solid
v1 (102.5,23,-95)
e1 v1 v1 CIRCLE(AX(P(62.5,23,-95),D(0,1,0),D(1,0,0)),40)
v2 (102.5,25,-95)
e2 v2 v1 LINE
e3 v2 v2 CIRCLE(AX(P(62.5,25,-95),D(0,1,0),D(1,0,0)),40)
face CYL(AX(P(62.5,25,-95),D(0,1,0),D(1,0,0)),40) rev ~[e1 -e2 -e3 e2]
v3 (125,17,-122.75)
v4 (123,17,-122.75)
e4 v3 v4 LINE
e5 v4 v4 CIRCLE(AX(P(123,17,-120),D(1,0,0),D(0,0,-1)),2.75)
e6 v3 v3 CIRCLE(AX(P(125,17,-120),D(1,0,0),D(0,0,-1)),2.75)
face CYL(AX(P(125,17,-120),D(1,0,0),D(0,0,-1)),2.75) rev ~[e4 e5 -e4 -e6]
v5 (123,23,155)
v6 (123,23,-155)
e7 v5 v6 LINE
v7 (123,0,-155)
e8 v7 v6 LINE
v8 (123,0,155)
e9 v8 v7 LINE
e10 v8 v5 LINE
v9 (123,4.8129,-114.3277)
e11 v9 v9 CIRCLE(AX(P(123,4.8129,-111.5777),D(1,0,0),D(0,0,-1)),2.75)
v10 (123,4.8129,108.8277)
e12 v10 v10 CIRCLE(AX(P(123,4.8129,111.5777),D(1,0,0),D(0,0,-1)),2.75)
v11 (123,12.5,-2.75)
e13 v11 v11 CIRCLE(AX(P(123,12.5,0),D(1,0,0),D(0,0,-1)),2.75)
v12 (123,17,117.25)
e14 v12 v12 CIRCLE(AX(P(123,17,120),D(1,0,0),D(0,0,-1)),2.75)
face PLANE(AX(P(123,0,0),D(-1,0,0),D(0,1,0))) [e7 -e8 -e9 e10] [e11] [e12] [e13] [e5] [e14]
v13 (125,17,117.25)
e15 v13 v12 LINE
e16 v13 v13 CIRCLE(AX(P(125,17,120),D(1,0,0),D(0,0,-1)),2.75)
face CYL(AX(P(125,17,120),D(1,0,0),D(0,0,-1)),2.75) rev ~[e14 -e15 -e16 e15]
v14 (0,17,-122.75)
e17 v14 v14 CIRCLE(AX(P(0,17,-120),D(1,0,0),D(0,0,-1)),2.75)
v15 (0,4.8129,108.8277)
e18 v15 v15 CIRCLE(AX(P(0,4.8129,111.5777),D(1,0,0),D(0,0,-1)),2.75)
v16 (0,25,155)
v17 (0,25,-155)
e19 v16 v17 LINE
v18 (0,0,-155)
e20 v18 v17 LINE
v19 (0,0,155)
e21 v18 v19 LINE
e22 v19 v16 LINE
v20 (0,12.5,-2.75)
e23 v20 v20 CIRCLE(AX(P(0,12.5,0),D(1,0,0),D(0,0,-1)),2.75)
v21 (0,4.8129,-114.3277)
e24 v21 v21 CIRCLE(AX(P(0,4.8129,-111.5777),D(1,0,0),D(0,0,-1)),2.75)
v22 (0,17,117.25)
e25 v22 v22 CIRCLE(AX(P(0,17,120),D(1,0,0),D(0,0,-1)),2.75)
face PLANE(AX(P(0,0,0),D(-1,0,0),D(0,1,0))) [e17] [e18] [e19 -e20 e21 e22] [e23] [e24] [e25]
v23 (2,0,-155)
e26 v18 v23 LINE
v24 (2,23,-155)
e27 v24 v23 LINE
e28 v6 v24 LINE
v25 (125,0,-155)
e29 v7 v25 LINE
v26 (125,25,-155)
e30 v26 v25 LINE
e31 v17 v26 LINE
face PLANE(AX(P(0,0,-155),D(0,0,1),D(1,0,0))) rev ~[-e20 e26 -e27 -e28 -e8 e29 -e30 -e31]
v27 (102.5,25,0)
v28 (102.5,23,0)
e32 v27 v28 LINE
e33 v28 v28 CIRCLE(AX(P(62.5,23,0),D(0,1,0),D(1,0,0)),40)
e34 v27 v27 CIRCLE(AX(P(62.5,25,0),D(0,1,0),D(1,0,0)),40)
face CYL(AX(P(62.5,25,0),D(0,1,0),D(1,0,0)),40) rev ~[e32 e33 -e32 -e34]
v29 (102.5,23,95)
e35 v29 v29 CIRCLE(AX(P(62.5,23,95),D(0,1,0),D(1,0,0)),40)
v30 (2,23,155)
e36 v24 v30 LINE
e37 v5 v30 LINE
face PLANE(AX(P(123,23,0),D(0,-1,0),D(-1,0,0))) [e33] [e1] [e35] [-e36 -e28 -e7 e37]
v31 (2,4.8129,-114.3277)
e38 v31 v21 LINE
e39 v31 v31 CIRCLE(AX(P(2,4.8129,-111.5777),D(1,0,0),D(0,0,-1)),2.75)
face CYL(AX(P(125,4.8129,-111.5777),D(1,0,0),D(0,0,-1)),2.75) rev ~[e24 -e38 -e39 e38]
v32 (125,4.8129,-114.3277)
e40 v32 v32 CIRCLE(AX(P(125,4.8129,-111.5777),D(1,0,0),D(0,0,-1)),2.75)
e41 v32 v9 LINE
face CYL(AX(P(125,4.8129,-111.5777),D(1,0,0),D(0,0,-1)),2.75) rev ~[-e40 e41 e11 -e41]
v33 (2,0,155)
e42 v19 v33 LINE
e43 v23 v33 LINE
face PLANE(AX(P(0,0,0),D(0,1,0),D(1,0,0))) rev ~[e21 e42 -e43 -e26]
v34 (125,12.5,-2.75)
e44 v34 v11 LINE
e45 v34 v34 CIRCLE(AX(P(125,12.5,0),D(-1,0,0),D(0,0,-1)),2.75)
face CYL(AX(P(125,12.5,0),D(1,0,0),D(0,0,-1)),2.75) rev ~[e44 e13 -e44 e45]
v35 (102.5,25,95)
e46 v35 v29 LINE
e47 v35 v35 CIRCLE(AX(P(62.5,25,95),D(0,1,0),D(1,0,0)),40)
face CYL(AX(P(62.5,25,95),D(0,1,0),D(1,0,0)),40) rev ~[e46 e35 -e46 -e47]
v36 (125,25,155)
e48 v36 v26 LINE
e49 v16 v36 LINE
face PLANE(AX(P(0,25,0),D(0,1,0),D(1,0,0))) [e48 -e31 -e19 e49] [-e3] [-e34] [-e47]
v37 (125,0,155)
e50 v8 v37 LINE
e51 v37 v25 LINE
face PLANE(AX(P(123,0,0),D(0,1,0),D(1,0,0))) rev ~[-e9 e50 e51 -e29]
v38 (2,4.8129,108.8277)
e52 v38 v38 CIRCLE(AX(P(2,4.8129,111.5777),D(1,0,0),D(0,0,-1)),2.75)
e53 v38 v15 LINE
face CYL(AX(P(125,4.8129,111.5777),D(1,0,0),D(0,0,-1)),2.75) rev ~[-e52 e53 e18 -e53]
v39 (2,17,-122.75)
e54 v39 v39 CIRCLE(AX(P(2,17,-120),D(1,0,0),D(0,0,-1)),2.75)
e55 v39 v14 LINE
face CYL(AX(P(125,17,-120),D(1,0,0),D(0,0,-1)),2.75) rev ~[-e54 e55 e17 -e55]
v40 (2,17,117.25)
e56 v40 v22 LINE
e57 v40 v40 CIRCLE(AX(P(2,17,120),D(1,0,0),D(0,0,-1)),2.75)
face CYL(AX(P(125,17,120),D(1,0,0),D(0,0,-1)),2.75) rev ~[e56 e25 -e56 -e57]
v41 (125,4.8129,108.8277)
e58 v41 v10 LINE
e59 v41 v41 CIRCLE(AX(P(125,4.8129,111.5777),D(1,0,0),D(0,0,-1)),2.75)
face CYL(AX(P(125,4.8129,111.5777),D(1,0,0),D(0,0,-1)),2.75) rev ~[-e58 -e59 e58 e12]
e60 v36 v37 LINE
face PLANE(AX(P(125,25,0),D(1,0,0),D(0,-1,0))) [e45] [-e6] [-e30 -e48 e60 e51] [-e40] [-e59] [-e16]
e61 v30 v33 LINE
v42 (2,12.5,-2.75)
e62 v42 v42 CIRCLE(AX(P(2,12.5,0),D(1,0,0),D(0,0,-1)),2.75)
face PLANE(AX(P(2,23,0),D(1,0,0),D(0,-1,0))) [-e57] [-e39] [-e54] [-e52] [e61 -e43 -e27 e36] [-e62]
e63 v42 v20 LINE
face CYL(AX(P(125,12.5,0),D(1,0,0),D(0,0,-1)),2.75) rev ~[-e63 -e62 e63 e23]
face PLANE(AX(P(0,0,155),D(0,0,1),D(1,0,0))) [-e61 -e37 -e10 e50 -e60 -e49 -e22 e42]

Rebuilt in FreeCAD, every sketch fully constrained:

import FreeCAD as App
import Part
import Sketcher
from FreeCAD import Vector

doc = App.newDocument("Part")
body = doc.addObject("PartDesign::Body", "Body")

sketch1 = body.newObject("Sketcher::SketchObject", "Sketch")
sketch1.AttachmentSupport = (doc.getObject("XY_Plane"), [""])
sketch1.MapMode = "FlatFace"
sketch1.addGeometry([
    Part.LineSegment(Vector(0, 25, 0), Vector(0, 0, 0)),
    Part.LineSegment(Vector(0, 0, 0), Vector(2, 0, 0)),
    Part.LineSegment(Vector(2, 0, 0), Vector(2, 23, 0)),
    Part.LineSegment(Vector(2, 23, 0), Vector(123, 23, 0)),
    Part.LineSegment(Vector(123, 23, 0), Vector(123, 0, 0)),
    Part.LineSegment(Vector(123, 0, 0), Vector(125, 0, 0)),
    Part.LineSegment(Vector(125, 0, 0), Vector(125, 25, 0)),
    Part.LineSegment(Vector(125, 25, 0), Vector(0, 25, 0)),
], False)
sketch1.addConstraint([
    Sketcher.Constraint("Coincident", 0, 2, 1, 1),
    Sketcher.Constraint("Coincident", 1, 2, 2, 1),
    Sketcher.Constraint("Coincident", 2, 2, 3, 1),
    Sketcher.Constraint("Coincident", 3, 2, 4, 1),
    Sketcher.Constraint("Coincident", 4, 2, 5, 1),
    Sketcher.Constraint("Coincident", 5, 2, 6, 1),
    Sketcher.Constraint("Coincident", 6, 2, 7, 1),
    Sketcher.Constraint("Coincident", 7, 2, 0, 1),
    Sketcher.Constraint("Vertical", 0),
    Sketcher.Constraint("Horizontal", 1),
    Sketcher.Constraint("Vertical", 2),
    Sketcher.Constraint("Horizontal", 3),
    Sketcher.Constraint("Vertical", 4),
    Sketcher.Constraint("Horizontal", 5),
    Sketcher.Constraint("Vertical", 6),
    Sketcher.Constraint("Horizontal", 7),
    Sketcher.Constraint("Coincident", 0, 2, -1, 1),
    Sketcher.Constraint("PointOnObject", 4, 2, -1),
    Sketcher.Constraint("Equal", 1, 5),
    Sketcher.Constraint("DistanceX", 1, 1, 1, 2, 2.0),
    Sketcher.Constraint("DistanceX", 7, 2, 7, 1, 125.0),
    Sketcher.Constraint("DistanceY", 0, 2, 0, 1, 25.0),
    Sketcher.Constraint("DistanceY", 3, 2, 6, 2, 2.0),
])
pad1 = body.newObject("PartDesign::Pad", "Pad")
pad1.Profile = sketch1
pad1.Length = 310
pad1.Midplane = True

sketch2 = body.newObject("Sketcher::SketchObject", "Sketch001")
sketch2.AttachmentSupport = (doc.getObject("YZ_Plane"), [""])
sketch2.MapMode = "FlatFace"
sketch2.AttachmentOffset = App.Placement(Vector(0, 0, 125), App.Rotation())
sketch2.addGeometry([
    Part.Circle(Vector(12.5, 0, 0), Vector(0, 0, 1), 2.8),
    Part.Circle(Vector(4.8, 111.6, 0), Vector(0, 0, 1), 2.8),
    Part.Circle(Vector(17, 120, 0), Vector(0, 0, 1), 2.8),
    Part.Circle(Vector(4.8, -111.6, 0), Vector(0, 0, 1), 2.8),
    Part.Circle(Vector(17, -120, 0), Vector(0, 0, 1), 2.8),
], False)
sketch2.addConstraint([
    Sketcher.Constraint("Equal", 0, 1),
    Sketcher.Constraint("Equal", 1, 2),
    Sketcher.Constraint("Equal", 2, 3),
    Sketcher.Constraint("Equal", 3, 4),
    Sketcher.Constraint("Symmetric", 1, 3, 3, 3, -1),
    Sketcher.Constraint("Symmetric", 2, 3, 4, 3, -1),
    Sketcher.Constraint("PointOnObject", 0, 3, -1),
    Sketcher.Constraint("Diameter", 0, 5.5),
    Sketcher.Constraint("DistanceX", -1, 1, 0, 3, 12.5),
    Sketcher.Constraint("DistanceX", -1, 1, 2, 3, 17.0),
    Sketcher.Constraint("DistanceY", -1, 1, 2, 3, 120.0),
    Sketcher.Constraint("DistanceX", -1, 1, 1, 3, 4.813),
    Sketcher.Constraint("DistanceY", -1, 1, 1, 3, 111.5777),
])
pocket1 = body.newObject("PartDesign::Pocket", "Pocket")
pocket1.Profile = sketch2
pocket1.Length = 205.75

sketch3 = body.newObject("Sketcher::SketchObject", "Sketch002")
sketch3.AttachmentSupport = (doc.getObject("XZ_Plane"), [""])
sketch3.MapMode = "FlatFace"
sketch3.AttachmentOffset = App.Placement(Vector(0, 0, -25), App.Rotation())
sketch3.addGeometry([
    Part.Circle(Vector(62, 95, 0), Vector(0, 0, 1), 40),
    Part.Circle(Vector(62, -95, 0), Vector(0, 0, 1), 40),
    Part.Circle(Vector(62, 0, 0), Vector(0, 0, 1), 40),
], False)
sketch3.addConstraint([
    Sketcher.Constraint("Equal", 0, 1),
    Sketcher.Constraint("Equal", 1, 2),
    Sketcher.Constraint("Symmetric", 0, 3, 1, 3, -1),
    Sketcher.Constraint("PointOnObject", 2, 3, -1),
    Sketcher.Constraint("Vertical", 1, 3, 2, 3),
    Sketcher.Constraint("Diameter", 0, 80.0),
    Sketcher.Constraint("DistanceX", -1, 1, 0, 3, 62.5),
    Sketcher.Constraint("DistanceY", -1, 1, 0, 3, 95.0),
])
pocket2 = body.newObject("PartDesign::Pocket", "Pocket001")
pocket2.Profile = sketch3
pocket2.Length = 10
pocket2.Reversed = True

doc.recompute()
